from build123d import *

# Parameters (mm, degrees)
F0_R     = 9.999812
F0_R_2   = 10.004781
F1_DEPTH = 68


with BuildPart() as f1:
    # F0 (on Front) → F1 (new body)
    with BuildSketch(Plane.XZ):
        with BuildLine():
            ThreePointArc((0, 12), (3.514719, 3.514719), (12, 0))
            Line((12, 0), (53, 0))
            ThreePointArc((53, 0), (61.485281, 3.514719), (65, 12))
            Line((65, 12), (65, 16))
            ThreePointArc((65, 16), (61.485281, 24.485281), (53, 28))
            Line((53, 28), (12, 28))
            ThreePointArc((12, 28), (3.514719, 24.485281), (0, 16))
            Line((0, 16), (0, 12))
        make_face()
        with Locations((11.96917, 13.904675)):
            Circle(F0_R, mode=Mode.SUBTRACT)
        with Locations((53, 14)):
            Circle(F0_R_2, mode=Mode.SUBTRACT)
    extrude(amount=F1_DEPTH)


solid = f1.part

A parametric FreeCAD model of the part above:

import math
import FreeCAD as App
import Part
import Sketcher
from FreeCAD import Vector

doc = App.newDocument("Part")
body = doc.addObject("PartDesign::Body", "Body")

# Sketch on XZ plane
sketch1 = body.newObject("Sketcher::SketchObject", "Sketch")
sketch1.AttachmentSupport = (doc.getObject("XZ_Plane"), [""])
sketch1.MapMode = "FlatFace"
sketch1.addGeometry(Part.ArcOfCircle(Part.Circle(Vector(12, 12, 0), Vector(0, 0, 1), 12), math.radians(-180), math.radians(-90)), False)
sketch1.addGeometry(Part.LineSegment(Vector(12, 0, 0), Vector(53, 0, 0)), False)
sketch1.addGeometry(Part.ArcOfCircle(Part.Circle(Vector(53, 12, 0), Vector(0, 0, 1), 12), math.radians(-90), math.radians(0)), False)
sketch1.addGeometry(Part.LineSegment(Vector(65, 12, 0), Vector(65, 16, 0)), False)
sketch1.addGeometry(Part.ArcOfCircle(Part.Circle(Vector(53, 16, 0), Vector(0, 0, 1), 12), math.radians(0), math.radians(90)), False)
sketch1.addGeometry(Part.LineSegment(Vector(53, 28, 0), Vector(12, 28, 0)), False)
sketch1.addGeometry(Part.ArcOfCircle(Part.Circle(Vector(12, 16, 0), Vector(0, 0, 1), 12), math.radians(90), math.radians(180)), False)
sketch1.addGeometry(Part.LineSegment(Vector(0, 16, 0), Vector(0, 12, 0)), False)
sketch1.addGeometry(Part.Circle(Vector(12, 13.9, 0), Vector(0, 0, 1), 10), False)
sketch1.addGeometry(Part.Circle(Vector(53, 14, 0), Vector(0, 0, 1), 10), False)
sketch1.addConstraint(Sketcher.Constraint("Tangent", 0, 2, 1, 1))
sketch1.addConstraint(Sketcher.Constraint("Tangent", 1, 2, 2, 1))
sketch1.addConstraint(Sketcher.Constraint("Tangent", 2, 2, 3, 1))
sketch1.addConstraint(Sketcher.Constraint("Tangent", 3, 2, 4, 1))
sketch1.addConstraint(Sketcher.Constraint("Tangent", 4, 2, 5, 1))
sketch1.addConstraint(Sketcher.Constraint("Tangent", 5, 2, 6, 1))
sketch1.addConstraint(Sketcher.Constraint("Tangent", 6, 2, 7, 1))
sketch1.addConstraint(Sketcher.Constraint("Tangent", 7, 2, 0, 1))
sketch1.addConstraint(Sketcher.Constraint("Horizontal", 1))
sketch1.addConstraint(Sketcher.Constraint("Vertical", 3))
sketch1.addConstraint(Sketcher.Constraint("Horizontal", 5))
sketch1.addConstraint(Sketcher.Constraint("Vertical", 7))
sketch1.addConstraint(Sketcher.Constraint("Equal", 0, 2))
sketch1.addConstraint(Sketcher.Constraint("Equal", 2, 4))
sketch1.addConstraint(Sketcher.Constraint("Equal", 4, 6))
sketch1.addConstraint(Sketcher.Constraint("PointOnObject", 0, 2, -1))
sketch1.addConstraint(Sketcher.Constraint("PointOnObject", 6, 2, -2))
sketch1.addConstraint(Sketcher.Constraint("Vertical", 4, 3, 9, 3))
sketch1.addConstraint(Sketcher.Constraint("Radius", 0, 12.000001))
sketch1.addConstraint(Sketcher.Constraint("DistanceX", 1, 1, 1, 2, 41.0))
sketch1.addConstraint(Sketcher.Constraint("DistanceY", 3, 1, 3, 2, 4.0))
sketch1.addConstraint(Sketcher.Constraint("DistanceY", -1, 1, 9, 3, 14.0))
sketch1.addConstraint(Sketcher.Constraint("Diameter", 9, 20.009562))
sketch1.addConstraint(Sketcher.Constraint("Diameter", 8, 19.999624))
sketch1.addConstraint(Sketcher.Constraint("DistanceX", -1, 1, 8, 3, 11.96917))
sketch1.addConstraint(Sketcher.Constraint("DistanceY", -1, 1, 8, 3, 13.904675))
pad1 = body.newObject("PartDesign::Pad", "Pad")
pad1.Profile = sketch1
pad1.Length = 68

doc.recompute()
